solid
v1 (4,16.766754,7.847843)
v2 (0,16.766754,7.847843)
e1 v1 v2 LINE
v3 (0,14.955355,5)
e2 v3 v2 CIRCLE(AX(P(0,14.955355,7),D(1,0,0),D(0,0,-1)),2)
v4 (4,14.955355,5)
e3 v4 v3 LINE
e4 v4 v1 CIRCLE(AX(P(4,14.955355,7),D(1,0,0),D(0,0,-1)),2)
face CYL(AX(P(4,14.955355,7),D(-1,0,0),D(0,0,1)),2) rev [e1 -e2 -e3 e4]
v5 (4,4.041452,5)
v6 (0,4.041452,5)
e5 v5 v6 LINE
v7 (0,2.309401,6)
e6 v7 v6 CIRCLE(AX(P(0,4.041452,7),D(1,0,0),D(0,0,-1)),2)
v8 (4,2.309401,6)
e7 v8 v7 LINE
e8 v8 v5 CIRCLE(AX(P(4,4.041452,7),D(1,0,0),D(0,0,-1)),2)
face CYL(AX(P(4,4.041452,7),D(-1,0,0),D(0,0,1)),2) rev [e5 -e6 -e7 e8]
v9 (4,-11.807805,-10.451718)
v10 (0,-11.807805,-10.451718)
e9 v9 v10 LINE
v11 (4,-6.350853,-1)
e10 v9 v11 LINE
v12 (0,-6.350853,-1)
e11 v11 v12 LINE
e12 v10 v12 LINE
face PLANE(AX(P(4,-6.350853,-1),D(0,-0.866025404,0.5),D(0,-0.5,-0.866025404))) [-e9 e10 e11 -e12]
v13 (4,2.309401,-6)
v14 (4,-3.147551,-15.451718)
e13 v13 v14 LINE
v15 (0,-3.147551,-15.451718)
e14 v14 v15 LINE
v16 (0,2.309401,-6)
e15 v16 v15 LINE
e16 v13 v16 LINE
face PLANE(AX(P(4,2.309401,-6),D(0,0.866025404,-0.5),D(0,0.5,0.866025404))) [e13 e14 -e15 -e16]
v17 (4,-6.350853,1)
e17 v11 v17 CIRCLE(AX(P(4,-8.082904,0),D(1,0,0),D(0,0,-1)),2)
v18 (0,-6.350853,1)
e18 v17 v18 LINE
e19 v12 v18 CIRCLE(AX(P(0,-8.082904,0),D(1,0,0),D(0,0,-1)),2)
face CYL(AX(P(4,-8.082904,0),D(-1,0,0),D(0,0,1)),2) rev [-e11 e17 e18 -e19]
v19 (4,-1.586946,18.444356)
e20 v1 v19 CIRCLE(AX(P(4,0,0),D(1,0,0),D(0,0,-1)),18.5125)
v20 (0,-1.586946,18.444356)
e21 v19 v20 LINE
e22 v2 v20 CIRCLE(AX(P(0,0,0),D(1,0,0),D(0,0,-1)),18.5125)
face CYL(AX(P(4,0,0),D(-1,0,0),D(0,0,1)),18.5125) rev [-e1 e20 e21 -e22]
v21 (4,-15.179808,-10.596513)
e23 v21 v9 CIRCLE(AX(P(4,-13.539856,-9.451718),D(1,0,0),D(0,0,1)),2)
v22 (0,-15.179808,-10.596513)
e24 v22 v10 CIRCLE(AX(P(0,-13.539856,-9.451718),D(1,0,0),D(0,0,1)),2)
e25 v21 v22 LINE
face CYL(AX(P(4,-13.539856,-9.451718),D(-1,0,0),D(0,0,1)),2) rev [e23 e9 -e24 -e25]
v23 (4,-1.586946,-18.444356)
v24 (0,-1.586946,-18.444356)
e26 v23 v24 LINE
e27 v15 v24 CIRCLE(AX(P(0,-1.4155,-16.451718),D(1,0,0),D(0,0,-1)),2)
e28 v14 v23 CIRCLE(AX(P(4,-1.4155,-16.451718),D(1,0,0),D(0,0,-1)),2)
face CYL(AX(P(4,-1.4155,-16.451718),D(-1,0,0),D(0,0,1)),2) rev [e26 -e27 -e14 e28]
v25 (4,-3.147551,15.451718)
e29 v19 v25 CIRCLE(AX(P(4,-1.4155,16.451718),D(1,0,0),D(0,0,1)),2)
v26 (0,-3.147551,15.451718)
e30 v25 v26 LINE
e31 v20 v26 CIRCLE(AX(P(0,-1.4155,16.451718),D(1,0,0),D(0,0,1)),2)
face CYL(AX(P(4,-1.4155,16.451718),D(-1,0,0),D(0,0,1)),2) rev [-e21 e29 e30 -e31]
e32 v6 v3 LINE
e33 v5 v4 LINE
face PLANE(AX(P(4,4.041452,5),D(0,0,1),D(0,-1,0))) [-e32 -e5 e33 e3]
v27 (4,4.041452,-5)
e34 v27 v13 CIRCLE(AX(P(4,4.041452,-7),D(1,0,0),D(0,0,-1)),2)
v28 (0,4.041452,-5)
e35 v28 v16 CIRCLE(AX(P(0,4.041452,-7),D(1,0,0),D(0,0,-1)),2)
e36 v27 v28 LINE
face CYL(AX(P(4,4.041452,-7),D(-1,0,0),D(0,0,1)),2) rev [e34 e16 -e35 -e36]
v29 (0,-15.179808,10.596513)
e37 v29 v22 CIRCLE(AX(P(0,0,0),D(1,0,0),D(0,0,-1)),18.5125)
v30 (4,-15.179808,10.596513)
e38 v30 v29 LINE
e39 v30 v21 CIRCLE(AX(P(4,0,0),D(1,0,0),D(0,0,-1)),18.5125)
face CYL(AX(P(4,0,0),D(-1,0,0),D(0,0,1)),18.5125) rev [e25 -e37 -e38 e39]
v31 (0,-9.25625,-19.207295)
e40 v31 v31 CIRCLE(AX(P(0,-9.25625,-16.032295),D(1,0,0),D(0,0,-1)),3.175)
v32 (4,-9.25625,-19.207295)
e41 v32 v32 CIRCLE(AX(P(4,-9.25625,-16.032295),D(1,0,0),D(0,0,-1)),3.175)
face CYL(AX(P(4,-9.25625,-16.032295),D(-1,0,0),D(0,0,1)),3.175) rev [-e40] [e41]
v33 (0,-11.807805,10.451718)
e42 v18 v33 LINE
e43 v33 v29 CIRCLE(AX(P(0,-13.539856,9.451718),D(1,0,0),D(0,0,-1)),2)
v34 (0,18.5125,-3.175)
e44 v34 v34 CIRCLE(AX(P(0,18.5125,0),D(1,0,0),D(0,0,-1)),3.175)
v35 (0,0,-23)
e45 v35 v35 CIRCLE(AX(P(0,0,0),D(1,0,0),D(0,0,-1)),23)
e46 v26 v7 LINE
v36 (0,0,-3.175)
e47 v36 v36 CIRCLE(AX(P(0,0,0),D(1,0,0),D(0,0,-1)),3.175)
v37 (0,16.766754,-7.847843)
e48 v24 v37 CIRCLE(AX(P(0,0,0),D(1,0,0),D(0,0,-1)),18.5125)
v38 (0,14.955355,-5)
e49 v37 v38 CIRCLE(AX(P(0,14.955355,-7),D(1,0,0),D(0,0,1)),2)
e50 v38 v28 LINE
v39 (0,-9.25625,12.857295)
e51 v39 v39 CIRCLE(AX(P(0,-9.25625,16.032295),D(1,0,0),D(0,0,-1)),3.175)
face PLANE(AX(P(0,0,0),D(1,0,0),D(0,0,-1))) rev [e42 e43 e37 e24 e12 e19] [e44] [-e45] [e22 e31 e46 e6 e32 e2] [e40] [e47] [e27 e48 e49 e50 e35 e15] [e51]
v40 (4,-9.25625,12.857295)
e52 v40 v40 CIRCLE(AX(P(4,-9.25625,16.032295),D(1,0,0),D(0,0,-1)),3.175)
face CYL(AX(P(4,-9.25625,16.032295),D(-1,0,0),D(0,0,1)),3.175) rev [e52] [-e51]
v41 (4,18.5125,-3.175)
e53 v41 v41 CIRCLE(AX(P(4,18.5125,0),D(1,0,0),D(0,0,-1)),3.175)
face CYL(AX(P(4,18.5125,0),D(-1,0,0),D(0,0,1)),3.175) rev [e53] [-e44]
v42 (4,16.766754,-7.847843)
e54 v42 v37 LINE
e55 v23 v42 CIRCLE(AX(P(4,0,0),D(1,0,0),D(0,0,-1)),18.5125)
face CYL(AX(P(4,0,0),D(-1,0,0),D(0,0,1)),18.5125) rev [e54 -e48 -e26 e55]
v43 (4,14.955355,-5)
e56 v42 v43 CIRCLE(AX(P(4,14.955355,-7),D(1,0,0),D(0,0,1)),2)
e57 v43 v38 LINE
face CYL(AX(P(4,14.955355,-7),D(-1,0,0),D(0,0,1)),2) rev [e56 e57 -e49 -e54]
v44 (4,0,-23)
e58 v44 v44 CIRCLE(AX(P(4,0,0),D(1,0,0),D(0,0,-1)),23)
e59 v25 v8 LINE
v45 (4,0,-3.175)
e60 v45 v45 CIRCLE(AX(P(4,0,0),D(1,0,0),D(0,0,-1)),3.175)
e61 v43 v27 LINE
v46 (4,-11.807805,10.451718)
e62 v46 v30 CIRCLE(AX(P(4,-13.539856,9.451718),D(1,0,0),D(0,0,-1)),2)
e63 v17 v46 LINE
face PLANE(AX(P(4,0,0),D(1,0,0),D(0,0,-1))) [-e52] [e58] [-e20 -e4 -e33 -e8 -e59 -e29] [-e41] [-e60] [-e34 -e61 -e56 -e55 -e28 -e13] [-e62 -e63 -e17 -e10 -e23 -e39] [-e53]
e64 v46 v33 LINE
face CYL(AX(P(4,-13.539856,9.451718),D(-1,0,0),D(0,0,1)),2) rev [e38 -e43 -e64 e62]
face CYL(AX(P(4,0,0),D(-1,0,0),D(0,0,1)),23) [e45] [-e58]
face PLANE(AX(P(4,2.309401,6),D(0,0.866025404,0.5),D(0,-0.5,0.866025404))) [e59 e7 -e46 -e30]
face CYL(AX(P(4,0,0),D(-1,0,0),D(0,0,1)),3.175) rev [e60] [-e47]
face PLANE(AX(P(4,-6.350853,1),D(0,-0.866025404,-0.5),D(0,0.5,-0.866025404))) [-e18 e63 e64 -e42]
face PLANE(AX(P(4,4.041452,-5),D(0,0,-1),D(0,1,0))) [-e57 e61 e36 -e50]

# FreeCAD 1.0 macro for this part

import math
import FreeCAD as App
import Part
import Sketcher
from FreeCAD import Vector
Q = App.Units.Quantity

doc = App.newDocument("Part")
params = doc.addObject("Spreadsheet::Sheet", "Params")
for row, (alias, value) in enumerate([
    ("sketch1_diameter", "46 mm"),
    ("sketch1_radius", "2 mm"),
    ("sketch1_diameter2", "6.35 mm"),
    ("pad1_length", "4 mm"),
], start=1):
    params.set(f"A{row}", alias)
    params.set(f"B{row}", "=" + value)
    params.setAlias(f"B{row}", alias)

body = doc.addObject("PartDesign::Body", "Body")

sketch1 = body.newObject("Sketcher::SketchObject", "Sketch")
sketch1.AttachmentSupport = (doc.getObject("YZ_Plane"), [""])
sketch1.MapMode = "FlatFace"
sketch1.addGeometry([
    Part.Circle(Vector(0, 0, 0), Vector(0, 0, 1), 23),
    Part.Circle(Vector(-9.25625, 16.032295, 0), Vector(0, 0, 1), 3.175),
    Part.LineSegment(Vector(-11.807805, 10.451718, 0), Vector(-6.350853, 1, 0)),
    Part.ArcOfCircle(Part.Circle(Vector(-8.082904, 0, 0), Vector(0, 0, 1), 2), math.radians(-30), math.radians(30)),
    Part.LineSegment(Vector(-6.350853, -1, 0), Vector(-11.807805, -10.451718, 0)),
    Part.ArcOfCircle(Part.Circle(Vector(-13.539856, -9.451718, 0), Vector(0, 0, 1), 2), math.radians(-145.082403), math.radians(-30)),
    Part.ArcOfCircle(Part.Circle(Vector(0, 0, 0), Vector(0, 0, 1), 18.5125), math.radians(145.082403), math.radians(214.917597)),
    Part.ArcOfCircle(Part.Circle(Vector(-13.539856, 9.451718, 0), Vector(0, 0, 1), 2), math.radians(30), math.radians(145.082403)),
    Part.Circle(Vector(-9.25625, -16.032295, 0), Vector(0, 0, 1), 3.175),
    Part.Circle(Vector(0, 0, 0), Vector(0, 0, 1), 3.175),
    Part.LineSegment(Vector(14.955355, 5, 0), Vector(4.041452, 5, 0)),
    Part.ArcOfCircle(Part.Circle(Vector(4.041452, 7, 0), Vector(0, 0, 1), 2), math.radians(-150), math.radians(-90)),
    Part.LineSegment(Vector(2.309401, 6, 0), Vector(-3.147551, 15.451718, 0)),
    Part.ArcOfCircle(Part.Circle(Vector(-1.4155, 16.451718, 0), Vector(0, 0, 1), 2), math.radians(94.917597), math.radians(210)),
    Part.ArcOfCircle(Part.Circle(Vector(0, 0, 0), Vector(0, 0, 1), 18.5125), math.radians(25.082403), math.radians(94.917597)),
    Part.ArcOfCircle(Part.Circle(Vector(14.955355, 7, 0), Vector(0, 0, 1), 2), math.radians(-90), math.radians(25.082402)),
    Part.LineSegment(Vector(-3.147551, -15.451718, 0), Vector(2.309401, -6, 0)),
    Part.ArcOfCircle(Part.Circle(Vector(4.041452, -7, 0), Vector(0, 0, 1), 2), math.radians(90), math.radians(150)),
    Part.LineSegment(Vector(4.041452, -5, 0), Vector(14.955355, -5, 0)),
    Part.ArcOfCircle(Part.Circle(Vector(14.955355, -7, 0), Vector(0, 0, 1), 2), math.radians(-25.082402), math.radians(90)),
    Part.ArcOfCircle(Part.Circle(Vector(0, 0, 0), Vector(0, 0, 1), 18.5125), math.radians(-94.917597), math.radians(-25.082403)),
    Part.ArcOfCircle(Part.Circle(Vector(-1.4155, -16.451718, 0), Vector(0, 0, 1), 2), math.radians(150), math.radians(265.082403)),
    Part.Circle(Vector(18.5125, 0, 0), Vector(0, 0, 1), 3.175),
], False)
sketch1.addConstraint([
    Sketcher.Constraint("Tangent", 2, 2, 3, 2),
    Sketcher.Constraint("Tangent", 3, 1, 4, 1),
    Sketcher.Constraint("Tangent", 4, 2, 5, 2),
    Sketcher.Constraint("Tangent", 5, 1, 6, 2),
    Sketcher.Constraint("Tangent", 6, 1, 7, 2),
    Sketcher.Constraint("Tangent", 7, 1, 2, 1),
    Sketcher.Constraint("Tangent", 10, 2, 11, 2),
    Sketcher.Constraint("Tangent", 11, 1, 12, 1),
    Sketcher.Constraint("Tangent", 12, 2, 13, 2),
    Sketcher.Constraint("Tangent", 13, 1, 14, 2),
    Sketcher.Constraint("Tangent", 14, 1, 15, 2),
    Sketcher.Constraint("Tangent", 15, 1, 10, 1),
    Sketcher.Constraint("Tangent", 16, 2, 17, 2),
    Sketcher.Constraint("Tangent", 17, 1, 18, 1),
    Sketcher.Constraint("Tangent", 18, 2, 19, 2),
    Sketcher.Constraint("Tangent", 19, 1, 20, 2),
    Sketcher.Constraint("Tangent", 20, 1, 21, 2),
    Sketcher.Constraint("Tangent", 21, 1, 16, 1),
    Sketcher.Constraint("Horizontal", 10),
    Sketcher.Constraint("Horizontal", 18),
    Sketcher.Constraint("Coincident", 0, 3, -1, 1),
    Sketcher.Constraint("Coincident", 6, 3, -1, 1),
    Sketcher.Constraint("Coincident", 9, 3, -1, 1),
    Sketcher.Constraint("Coincident", 14, 3, -1, 1),
    Sketcher.Constraint("Coincident", 20, 3, -1, 1),
    Sketcher.Constraint("Equal", 3, 5),
    Sketcher.Constraint("Equal", 5, 7),
    Sketcher.Constraint("Equal", 1, 8),
    Sketcher.Constraint("Equal", 8, 9),
    Sketcher.Constraint("Equal", 7, 11),
    Sketcher.Constraint("Equal", 11, 13),
    Sketcher.Constraint("Equal", 6, 14),
    Sketcher.Constraint("Equal", 13, 15),
    Sketcher.Constraint("Equal", 15, 17),
    Sketcher.Constraint("Equal", 17, 19),
    Sketcher.Constraint("Equal", 14, 20),
    Sketcher.Constraint("Equal", 19, 21),
    Sketcher.Constraint("Equal", 9, 22),
    Sketcher.Constraint("Symmetric", 1, 3, 8, 3, -1),
    Sketcher.Constraint("Symmetric", 11, 3, 17, 3, -1),
    Sketcher.Constraint("Symmetric", 2, 2, 3, 1, -1),
    Sketcher.Constraint("PointOnObject", 22, 3, -1),
    Sketcher.Constraint("Parallel", 2, 12),
    Sketcher.Constraint("Parallel", 4, 16),
    Sketcher.Constraint("Equal", 4, 12),
    Sketcher.Constraint("Diameter", 0, Q("46 mm")),
    Sketcher.Constraint("Radius", 3, Q("2 mm")),
    Sketcher.Constraint("Diameter", 1, Q("6.35 mm")),
    Sketcher.Constraint("Angle", 2, Q("-60 deg")),
    Sketcher.Constraint("DistanceY", -1, 1, 11, 3, Q("7 mm")),
    Sketcher.Constraint("Radius", 6, Q("18.5125 mm")),
    Sketcher.Constraint("DistanceX", 13, 3, -1, 1, Q("1.4155 mm")),
    Sketcher.Constraint("DistanceX", -1, 1, 22, 3, Q("18.5125 mm")),
    Sketcher.Constraint("DistanceX", 1, 3, 11, 3, Q("13.297702 mm")),
    Sketcher.Constraint("DistanceY", 1, 3, 13, 1, Q("2.41206 mm")),
])
sketch1.setExpression("Constraints[45]", "Params.sketch1_diameter")
sketch1.setExpression("Constraints[46]", "Params.sketch1_radius")
sketch1.setExpression("Constraints[47]", "Params.sketch1_diameter2")
pad1 = body.newObject("PartDesign::Pad", "Pad")
pad1.Profile = sketch1
pad1.setExpression("Length", "Params.pad1_length")

doc.recompute()
